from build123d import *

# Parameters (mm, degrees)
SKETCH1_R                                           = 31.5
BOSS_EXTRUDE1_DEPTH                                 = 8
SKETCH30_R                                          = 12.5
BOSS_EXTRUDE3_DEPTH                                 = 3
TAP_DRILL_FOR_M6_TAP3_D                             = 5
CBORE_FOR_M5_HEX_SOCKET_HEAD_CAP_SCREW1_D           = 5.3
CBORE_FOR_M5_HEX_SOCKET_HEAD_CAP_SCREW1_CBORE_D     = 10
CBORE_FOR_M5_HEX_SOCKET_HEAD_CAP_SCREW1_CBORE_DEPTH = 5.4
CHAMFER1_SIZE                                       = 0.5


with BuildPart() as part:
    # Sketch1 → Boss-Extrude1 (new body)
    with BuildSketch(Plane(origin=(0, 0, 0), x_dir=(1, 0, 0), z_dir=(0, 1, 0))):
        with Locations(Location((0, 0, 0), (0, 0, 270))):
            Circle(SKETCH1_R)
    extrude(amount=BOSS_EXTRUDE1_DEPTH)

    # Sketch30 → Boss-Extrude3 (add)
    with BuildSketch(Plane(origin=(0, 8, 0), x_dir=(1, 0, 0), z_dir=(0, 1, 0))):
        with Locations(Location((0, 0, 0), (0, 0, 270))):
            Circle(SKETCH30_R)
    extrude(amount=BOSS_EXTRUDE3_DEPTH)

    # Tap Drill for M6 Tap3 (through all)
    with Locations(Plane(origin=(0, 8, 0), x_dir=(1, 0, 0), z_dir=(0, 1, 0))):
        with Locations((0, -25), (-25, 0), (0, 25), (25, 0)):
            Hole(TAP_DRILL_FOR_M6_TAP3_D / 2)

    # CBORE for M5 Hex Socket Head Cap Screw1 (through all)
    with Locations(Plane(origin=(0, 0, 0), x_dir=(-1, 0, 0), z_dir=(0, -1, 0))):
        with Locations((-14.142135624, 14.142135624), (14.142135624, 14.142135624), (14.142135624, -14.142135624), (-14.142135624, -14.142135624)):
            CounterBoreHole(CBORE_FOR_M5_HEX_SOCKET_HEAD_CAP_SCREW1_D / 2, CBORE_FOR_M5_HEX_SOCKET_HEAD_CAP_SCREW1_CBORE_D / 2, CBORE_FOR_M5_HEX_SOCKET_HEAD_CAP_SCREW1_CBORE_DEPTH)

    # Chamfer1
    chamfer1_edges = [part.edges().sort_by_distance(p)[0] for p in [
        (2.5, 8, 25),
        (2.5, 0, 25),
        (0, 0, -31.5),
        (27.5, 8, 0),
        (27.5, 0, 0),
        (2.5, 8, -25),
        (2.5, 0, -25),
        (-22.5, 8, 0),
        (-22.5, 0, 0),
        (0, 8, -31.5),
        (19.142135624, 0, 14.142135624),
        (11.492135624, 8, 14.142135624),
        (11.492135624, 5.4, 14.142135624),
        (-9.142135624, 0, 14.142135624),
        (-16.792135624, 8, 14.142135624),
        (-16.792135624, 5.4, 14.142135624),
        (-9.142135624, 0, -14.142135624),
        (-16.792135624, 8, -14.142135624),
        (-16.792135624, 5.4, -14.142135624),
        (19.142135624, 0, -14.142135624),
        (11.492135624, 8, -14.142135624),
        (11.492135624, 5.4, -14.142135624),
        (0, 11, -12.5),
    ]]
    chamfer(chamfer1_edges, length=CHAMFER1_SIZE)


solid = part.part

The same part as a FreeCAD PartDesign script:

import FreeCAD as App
import Part
import Sketcher
Q = App.Units.Quantity


def edges_at(feature, points):
    """Names of the edges that pass closest to the given points."""
    edges = feature.Shape.Edges
    near = lambda p: min(range(len(edges)), key=lambda i: edges[i].distToShape(Part.Vertex(*p))[0])
    return sorted({f"Edge{near(p) + 1}" for p in points})

doc = App.newDocument("Part")
body = doc.addObject("PartDesign::Body", "Body")

sketch1 = body.newObject("Sketcher::SketchObject", "Sketch")
sketch1.AttachmentSupport = (doc.getObject("XZ_Plane"), [""])
sketch1.MapMode = "FlatFace"
sketch1.addGeometry(Part.Circle(App.Vector(0, 0, 0), App.Vector(0, 0, 1), 32), False)
sketch1.addConstraint(Sketcher.Constraint("Coincident", 0, 3, -1, 1))
sketch1.addConstraint(Sketcher.Constraint("Diameter", 0, Q("63 mm")))
pad1 = body.newObject("PartDesign::Pad", "Pad")
pad1.Profile = sketch1
pad1.Length = 8
pad1.Reversed = True

sketch2 = body.newObject("Sketcher::SketchObject", "Sketch001")
sketch2.AttachmentSupport = (doc.getObject("XZ_Plane"), [""])
sketch2.MapMode = "FlatFace"
sketch2.AttachmentOffset = App.Placement(App.Vector(0, 0, -8), App.Rotation())
sketch2.addGeometry(Part.Circle(App.Vector(0, 0, 0), App.Vector(0, 0, 1), 12), False)
sketch2.addConstraint(Sketcher.Constraint("Coincident", 0, 3, -1, 1))
sketch2.addConstraint(Sketcher.Constraint("Diameter", 0, Q("25 mm")))
pad2 = body.newObject("PartDesign::Pad", "Pad001")
pad2.Profile = sketch2
pad2.Length = 3
pad2.Reversed = True

sketch3 = body.newObject("Sketcher::SketchObject", "Sketch002")
sketch3.AttachmentSupport = (doc.getObject("XZ_Plane"), [""])
sketch3.MapMode = "FlatFace"
sketch3.AttachmentOffset = App.Placement(App.Vector(0, 0, -8), App.Rotation())
sketch3.addGeometry(Part.Circle(App.Vector(0, 25, 0), App.Vector(0, 0, 1), 2.5), False)
sketch3.addGeometry(Part.Circle(App.Vector(-25, 0, 0), App.Vector(0, 0, 1), 2.5), False)
sketch3.addGeometry(Part.Circle(App.Vector(0, -25, 0), App.Vector(0, 0, 1), 2.5), False)
sketch3.addGeometry(Part.Circle(App.Vector(25, 0, 0), App.Vector(0, 0, 1), 2.5), False)
sketch3.addConstraint(Sketcher.Constraint("Equal", 0, 1))
sketch3.addConstraint(Sketcher.Constraint("Equal", 1, 2))
sketch3.addConstraint(Sketcher.Constraint("Equal", 2, 3))
sketch3.addConstraint(Sketcher.Constraint("Symmetric", 0, 3, 2, 3, -1, 1))
sketch3.addConstraint(Sketcher.Constraint("Symmetric", 1, 3, 3, 3, -1, 1))
sketch3.addConstraint(Sketcher.Constraint("PointOnObject", 0, 3, -2))
sketch3.addConstraint(Sketcher.Constraint("PointOnObject", 1, 3, -1))
sketch3.addConstraint(Sketcher.Constraint("Diameter", 0, Q("5 mm")))
sketch3.addConstraint(Sketcher.Constraint("DistanceY", -1, 1, 0, 3, Q("25 mm")))
sketch3.addConstraint(Sketcher.Constraint("DistanceX", 1, 3, -1, 1, Q("25 mm")))
doc.recompute()
hole = body.newObject("PartDesign::Hole", "Hole")
hole.Profile = sketch3
hole.ThreadType = "None"
hole.Diameter = 5
hole.DepthType = "ThroughAll"
hole.Reversed = True

sketch4 = body.newObject("Sketcher::SketchObject", "Sketch003")
sketch4.AttachmentSupport = (doc.getObject("XZ_Plane"), [""])
sketch4.MapMode = "FlatFace"
sketch4.addGeometry(Part.Circle(App.Vector(14.1, -14.1, 0), App.Vector(0, 0, 1), 2.6), False)
sketch4.addGeometry(Part.Circle(App.Vector(-14.1, -14.1, 0), App.Vector(0, 0, 1), 2.6), False)
sketch4.addGeometry(Part.Circle(App.Vector(-14.1, 14.1, 0), App.Vector(0, 0, 1), 2.6), False)
sketch4.addGeometry(Part.Circle(App.Vector(14.1, 14.1, 0), App.Vector(0, 0, 1), 2.6), False)
sketch4.addConstraint(Sketcher.Constraint("Equal", 0, 1))
sketch4.addConstraint(Sketcher.Constraint("Equal", 1, 2))
sketch4.addConstraint(Sketcher.Constraint("Equal", 2, 3))
sketch4.addConstraint(Sketcher.Constraint("Symmetric", 0, 3, 2, 3, -1, 1))
sketch4.addConstraint(Sketcher.Constraint("Symmetric", 1, 3, 3, 3, -1, 1))
sketch4.addConstraint(Sketcher.Constraint("Symmetric", 0, 3, 1, 3, -2))
sketch4.addConstraint(Sketcher.Constraint("Diameter", 0, Q("5.3 mm")))
sketch4.addConstraint(Sketcher.Constraint("DistanceX", 1, 3, 0, 3, Q("28.284271 mm")))
sketch4.addConstraint(Sketcher.Constraint("DistanceY", 1, 3, 2, 3, Q("28.284271 mm")))
doc.recompute()
hole2 = body.newObject("PartDesign::Hole", "Hole001")
hole2.Profile = sketch4
hole2.ThreadType = "None"
hole2.Diameter = 5.3
hole2.DepthType = "ThroughAll"
hole2.HoleCutType = "Counterbore"
hole2.HoleCutDiameter = 10
hole2.HoleCutDepth = 5.4
doc.recompute()

chamfer = body.newObject("PartDesign::Chamfer", "Chamfer")
chamfer.Base = (hole2, edges_at(hole2, [
    (2.5, 8, 25),
    (2.5, 0, 25),
    (0, 0, -31.5),
    (27.5, 8, 0),
    (27.5, 0, 0),
    (2.5, 8, -25),
    (2.5, 0, -25),
    (-22.5, 8, 0),
    (-22.5, 0, 0),
    (0, 8, -31.5),
    (19.142, 0, 14.142),
    (11.492, 8, 14.142),
    (11.492, 5.4, 14.142),
    (-9.142, 0, 14.142),
    (-16.792, 8, 14.142),
    (-16.792, 5.4, 14.142),
    (-9.142, 0, -14.142),
    (-16.792, 8, -14.142),
    (-16.792, 5.4, -14.142),
    (19.142, 0, -14.142),
    (11.492, 8, -14.142),
    (11.492, 5.4, -14.142),
    (0, 11, -12.5),
]))
chamfer.Size = 0.5

doc.recompute()
